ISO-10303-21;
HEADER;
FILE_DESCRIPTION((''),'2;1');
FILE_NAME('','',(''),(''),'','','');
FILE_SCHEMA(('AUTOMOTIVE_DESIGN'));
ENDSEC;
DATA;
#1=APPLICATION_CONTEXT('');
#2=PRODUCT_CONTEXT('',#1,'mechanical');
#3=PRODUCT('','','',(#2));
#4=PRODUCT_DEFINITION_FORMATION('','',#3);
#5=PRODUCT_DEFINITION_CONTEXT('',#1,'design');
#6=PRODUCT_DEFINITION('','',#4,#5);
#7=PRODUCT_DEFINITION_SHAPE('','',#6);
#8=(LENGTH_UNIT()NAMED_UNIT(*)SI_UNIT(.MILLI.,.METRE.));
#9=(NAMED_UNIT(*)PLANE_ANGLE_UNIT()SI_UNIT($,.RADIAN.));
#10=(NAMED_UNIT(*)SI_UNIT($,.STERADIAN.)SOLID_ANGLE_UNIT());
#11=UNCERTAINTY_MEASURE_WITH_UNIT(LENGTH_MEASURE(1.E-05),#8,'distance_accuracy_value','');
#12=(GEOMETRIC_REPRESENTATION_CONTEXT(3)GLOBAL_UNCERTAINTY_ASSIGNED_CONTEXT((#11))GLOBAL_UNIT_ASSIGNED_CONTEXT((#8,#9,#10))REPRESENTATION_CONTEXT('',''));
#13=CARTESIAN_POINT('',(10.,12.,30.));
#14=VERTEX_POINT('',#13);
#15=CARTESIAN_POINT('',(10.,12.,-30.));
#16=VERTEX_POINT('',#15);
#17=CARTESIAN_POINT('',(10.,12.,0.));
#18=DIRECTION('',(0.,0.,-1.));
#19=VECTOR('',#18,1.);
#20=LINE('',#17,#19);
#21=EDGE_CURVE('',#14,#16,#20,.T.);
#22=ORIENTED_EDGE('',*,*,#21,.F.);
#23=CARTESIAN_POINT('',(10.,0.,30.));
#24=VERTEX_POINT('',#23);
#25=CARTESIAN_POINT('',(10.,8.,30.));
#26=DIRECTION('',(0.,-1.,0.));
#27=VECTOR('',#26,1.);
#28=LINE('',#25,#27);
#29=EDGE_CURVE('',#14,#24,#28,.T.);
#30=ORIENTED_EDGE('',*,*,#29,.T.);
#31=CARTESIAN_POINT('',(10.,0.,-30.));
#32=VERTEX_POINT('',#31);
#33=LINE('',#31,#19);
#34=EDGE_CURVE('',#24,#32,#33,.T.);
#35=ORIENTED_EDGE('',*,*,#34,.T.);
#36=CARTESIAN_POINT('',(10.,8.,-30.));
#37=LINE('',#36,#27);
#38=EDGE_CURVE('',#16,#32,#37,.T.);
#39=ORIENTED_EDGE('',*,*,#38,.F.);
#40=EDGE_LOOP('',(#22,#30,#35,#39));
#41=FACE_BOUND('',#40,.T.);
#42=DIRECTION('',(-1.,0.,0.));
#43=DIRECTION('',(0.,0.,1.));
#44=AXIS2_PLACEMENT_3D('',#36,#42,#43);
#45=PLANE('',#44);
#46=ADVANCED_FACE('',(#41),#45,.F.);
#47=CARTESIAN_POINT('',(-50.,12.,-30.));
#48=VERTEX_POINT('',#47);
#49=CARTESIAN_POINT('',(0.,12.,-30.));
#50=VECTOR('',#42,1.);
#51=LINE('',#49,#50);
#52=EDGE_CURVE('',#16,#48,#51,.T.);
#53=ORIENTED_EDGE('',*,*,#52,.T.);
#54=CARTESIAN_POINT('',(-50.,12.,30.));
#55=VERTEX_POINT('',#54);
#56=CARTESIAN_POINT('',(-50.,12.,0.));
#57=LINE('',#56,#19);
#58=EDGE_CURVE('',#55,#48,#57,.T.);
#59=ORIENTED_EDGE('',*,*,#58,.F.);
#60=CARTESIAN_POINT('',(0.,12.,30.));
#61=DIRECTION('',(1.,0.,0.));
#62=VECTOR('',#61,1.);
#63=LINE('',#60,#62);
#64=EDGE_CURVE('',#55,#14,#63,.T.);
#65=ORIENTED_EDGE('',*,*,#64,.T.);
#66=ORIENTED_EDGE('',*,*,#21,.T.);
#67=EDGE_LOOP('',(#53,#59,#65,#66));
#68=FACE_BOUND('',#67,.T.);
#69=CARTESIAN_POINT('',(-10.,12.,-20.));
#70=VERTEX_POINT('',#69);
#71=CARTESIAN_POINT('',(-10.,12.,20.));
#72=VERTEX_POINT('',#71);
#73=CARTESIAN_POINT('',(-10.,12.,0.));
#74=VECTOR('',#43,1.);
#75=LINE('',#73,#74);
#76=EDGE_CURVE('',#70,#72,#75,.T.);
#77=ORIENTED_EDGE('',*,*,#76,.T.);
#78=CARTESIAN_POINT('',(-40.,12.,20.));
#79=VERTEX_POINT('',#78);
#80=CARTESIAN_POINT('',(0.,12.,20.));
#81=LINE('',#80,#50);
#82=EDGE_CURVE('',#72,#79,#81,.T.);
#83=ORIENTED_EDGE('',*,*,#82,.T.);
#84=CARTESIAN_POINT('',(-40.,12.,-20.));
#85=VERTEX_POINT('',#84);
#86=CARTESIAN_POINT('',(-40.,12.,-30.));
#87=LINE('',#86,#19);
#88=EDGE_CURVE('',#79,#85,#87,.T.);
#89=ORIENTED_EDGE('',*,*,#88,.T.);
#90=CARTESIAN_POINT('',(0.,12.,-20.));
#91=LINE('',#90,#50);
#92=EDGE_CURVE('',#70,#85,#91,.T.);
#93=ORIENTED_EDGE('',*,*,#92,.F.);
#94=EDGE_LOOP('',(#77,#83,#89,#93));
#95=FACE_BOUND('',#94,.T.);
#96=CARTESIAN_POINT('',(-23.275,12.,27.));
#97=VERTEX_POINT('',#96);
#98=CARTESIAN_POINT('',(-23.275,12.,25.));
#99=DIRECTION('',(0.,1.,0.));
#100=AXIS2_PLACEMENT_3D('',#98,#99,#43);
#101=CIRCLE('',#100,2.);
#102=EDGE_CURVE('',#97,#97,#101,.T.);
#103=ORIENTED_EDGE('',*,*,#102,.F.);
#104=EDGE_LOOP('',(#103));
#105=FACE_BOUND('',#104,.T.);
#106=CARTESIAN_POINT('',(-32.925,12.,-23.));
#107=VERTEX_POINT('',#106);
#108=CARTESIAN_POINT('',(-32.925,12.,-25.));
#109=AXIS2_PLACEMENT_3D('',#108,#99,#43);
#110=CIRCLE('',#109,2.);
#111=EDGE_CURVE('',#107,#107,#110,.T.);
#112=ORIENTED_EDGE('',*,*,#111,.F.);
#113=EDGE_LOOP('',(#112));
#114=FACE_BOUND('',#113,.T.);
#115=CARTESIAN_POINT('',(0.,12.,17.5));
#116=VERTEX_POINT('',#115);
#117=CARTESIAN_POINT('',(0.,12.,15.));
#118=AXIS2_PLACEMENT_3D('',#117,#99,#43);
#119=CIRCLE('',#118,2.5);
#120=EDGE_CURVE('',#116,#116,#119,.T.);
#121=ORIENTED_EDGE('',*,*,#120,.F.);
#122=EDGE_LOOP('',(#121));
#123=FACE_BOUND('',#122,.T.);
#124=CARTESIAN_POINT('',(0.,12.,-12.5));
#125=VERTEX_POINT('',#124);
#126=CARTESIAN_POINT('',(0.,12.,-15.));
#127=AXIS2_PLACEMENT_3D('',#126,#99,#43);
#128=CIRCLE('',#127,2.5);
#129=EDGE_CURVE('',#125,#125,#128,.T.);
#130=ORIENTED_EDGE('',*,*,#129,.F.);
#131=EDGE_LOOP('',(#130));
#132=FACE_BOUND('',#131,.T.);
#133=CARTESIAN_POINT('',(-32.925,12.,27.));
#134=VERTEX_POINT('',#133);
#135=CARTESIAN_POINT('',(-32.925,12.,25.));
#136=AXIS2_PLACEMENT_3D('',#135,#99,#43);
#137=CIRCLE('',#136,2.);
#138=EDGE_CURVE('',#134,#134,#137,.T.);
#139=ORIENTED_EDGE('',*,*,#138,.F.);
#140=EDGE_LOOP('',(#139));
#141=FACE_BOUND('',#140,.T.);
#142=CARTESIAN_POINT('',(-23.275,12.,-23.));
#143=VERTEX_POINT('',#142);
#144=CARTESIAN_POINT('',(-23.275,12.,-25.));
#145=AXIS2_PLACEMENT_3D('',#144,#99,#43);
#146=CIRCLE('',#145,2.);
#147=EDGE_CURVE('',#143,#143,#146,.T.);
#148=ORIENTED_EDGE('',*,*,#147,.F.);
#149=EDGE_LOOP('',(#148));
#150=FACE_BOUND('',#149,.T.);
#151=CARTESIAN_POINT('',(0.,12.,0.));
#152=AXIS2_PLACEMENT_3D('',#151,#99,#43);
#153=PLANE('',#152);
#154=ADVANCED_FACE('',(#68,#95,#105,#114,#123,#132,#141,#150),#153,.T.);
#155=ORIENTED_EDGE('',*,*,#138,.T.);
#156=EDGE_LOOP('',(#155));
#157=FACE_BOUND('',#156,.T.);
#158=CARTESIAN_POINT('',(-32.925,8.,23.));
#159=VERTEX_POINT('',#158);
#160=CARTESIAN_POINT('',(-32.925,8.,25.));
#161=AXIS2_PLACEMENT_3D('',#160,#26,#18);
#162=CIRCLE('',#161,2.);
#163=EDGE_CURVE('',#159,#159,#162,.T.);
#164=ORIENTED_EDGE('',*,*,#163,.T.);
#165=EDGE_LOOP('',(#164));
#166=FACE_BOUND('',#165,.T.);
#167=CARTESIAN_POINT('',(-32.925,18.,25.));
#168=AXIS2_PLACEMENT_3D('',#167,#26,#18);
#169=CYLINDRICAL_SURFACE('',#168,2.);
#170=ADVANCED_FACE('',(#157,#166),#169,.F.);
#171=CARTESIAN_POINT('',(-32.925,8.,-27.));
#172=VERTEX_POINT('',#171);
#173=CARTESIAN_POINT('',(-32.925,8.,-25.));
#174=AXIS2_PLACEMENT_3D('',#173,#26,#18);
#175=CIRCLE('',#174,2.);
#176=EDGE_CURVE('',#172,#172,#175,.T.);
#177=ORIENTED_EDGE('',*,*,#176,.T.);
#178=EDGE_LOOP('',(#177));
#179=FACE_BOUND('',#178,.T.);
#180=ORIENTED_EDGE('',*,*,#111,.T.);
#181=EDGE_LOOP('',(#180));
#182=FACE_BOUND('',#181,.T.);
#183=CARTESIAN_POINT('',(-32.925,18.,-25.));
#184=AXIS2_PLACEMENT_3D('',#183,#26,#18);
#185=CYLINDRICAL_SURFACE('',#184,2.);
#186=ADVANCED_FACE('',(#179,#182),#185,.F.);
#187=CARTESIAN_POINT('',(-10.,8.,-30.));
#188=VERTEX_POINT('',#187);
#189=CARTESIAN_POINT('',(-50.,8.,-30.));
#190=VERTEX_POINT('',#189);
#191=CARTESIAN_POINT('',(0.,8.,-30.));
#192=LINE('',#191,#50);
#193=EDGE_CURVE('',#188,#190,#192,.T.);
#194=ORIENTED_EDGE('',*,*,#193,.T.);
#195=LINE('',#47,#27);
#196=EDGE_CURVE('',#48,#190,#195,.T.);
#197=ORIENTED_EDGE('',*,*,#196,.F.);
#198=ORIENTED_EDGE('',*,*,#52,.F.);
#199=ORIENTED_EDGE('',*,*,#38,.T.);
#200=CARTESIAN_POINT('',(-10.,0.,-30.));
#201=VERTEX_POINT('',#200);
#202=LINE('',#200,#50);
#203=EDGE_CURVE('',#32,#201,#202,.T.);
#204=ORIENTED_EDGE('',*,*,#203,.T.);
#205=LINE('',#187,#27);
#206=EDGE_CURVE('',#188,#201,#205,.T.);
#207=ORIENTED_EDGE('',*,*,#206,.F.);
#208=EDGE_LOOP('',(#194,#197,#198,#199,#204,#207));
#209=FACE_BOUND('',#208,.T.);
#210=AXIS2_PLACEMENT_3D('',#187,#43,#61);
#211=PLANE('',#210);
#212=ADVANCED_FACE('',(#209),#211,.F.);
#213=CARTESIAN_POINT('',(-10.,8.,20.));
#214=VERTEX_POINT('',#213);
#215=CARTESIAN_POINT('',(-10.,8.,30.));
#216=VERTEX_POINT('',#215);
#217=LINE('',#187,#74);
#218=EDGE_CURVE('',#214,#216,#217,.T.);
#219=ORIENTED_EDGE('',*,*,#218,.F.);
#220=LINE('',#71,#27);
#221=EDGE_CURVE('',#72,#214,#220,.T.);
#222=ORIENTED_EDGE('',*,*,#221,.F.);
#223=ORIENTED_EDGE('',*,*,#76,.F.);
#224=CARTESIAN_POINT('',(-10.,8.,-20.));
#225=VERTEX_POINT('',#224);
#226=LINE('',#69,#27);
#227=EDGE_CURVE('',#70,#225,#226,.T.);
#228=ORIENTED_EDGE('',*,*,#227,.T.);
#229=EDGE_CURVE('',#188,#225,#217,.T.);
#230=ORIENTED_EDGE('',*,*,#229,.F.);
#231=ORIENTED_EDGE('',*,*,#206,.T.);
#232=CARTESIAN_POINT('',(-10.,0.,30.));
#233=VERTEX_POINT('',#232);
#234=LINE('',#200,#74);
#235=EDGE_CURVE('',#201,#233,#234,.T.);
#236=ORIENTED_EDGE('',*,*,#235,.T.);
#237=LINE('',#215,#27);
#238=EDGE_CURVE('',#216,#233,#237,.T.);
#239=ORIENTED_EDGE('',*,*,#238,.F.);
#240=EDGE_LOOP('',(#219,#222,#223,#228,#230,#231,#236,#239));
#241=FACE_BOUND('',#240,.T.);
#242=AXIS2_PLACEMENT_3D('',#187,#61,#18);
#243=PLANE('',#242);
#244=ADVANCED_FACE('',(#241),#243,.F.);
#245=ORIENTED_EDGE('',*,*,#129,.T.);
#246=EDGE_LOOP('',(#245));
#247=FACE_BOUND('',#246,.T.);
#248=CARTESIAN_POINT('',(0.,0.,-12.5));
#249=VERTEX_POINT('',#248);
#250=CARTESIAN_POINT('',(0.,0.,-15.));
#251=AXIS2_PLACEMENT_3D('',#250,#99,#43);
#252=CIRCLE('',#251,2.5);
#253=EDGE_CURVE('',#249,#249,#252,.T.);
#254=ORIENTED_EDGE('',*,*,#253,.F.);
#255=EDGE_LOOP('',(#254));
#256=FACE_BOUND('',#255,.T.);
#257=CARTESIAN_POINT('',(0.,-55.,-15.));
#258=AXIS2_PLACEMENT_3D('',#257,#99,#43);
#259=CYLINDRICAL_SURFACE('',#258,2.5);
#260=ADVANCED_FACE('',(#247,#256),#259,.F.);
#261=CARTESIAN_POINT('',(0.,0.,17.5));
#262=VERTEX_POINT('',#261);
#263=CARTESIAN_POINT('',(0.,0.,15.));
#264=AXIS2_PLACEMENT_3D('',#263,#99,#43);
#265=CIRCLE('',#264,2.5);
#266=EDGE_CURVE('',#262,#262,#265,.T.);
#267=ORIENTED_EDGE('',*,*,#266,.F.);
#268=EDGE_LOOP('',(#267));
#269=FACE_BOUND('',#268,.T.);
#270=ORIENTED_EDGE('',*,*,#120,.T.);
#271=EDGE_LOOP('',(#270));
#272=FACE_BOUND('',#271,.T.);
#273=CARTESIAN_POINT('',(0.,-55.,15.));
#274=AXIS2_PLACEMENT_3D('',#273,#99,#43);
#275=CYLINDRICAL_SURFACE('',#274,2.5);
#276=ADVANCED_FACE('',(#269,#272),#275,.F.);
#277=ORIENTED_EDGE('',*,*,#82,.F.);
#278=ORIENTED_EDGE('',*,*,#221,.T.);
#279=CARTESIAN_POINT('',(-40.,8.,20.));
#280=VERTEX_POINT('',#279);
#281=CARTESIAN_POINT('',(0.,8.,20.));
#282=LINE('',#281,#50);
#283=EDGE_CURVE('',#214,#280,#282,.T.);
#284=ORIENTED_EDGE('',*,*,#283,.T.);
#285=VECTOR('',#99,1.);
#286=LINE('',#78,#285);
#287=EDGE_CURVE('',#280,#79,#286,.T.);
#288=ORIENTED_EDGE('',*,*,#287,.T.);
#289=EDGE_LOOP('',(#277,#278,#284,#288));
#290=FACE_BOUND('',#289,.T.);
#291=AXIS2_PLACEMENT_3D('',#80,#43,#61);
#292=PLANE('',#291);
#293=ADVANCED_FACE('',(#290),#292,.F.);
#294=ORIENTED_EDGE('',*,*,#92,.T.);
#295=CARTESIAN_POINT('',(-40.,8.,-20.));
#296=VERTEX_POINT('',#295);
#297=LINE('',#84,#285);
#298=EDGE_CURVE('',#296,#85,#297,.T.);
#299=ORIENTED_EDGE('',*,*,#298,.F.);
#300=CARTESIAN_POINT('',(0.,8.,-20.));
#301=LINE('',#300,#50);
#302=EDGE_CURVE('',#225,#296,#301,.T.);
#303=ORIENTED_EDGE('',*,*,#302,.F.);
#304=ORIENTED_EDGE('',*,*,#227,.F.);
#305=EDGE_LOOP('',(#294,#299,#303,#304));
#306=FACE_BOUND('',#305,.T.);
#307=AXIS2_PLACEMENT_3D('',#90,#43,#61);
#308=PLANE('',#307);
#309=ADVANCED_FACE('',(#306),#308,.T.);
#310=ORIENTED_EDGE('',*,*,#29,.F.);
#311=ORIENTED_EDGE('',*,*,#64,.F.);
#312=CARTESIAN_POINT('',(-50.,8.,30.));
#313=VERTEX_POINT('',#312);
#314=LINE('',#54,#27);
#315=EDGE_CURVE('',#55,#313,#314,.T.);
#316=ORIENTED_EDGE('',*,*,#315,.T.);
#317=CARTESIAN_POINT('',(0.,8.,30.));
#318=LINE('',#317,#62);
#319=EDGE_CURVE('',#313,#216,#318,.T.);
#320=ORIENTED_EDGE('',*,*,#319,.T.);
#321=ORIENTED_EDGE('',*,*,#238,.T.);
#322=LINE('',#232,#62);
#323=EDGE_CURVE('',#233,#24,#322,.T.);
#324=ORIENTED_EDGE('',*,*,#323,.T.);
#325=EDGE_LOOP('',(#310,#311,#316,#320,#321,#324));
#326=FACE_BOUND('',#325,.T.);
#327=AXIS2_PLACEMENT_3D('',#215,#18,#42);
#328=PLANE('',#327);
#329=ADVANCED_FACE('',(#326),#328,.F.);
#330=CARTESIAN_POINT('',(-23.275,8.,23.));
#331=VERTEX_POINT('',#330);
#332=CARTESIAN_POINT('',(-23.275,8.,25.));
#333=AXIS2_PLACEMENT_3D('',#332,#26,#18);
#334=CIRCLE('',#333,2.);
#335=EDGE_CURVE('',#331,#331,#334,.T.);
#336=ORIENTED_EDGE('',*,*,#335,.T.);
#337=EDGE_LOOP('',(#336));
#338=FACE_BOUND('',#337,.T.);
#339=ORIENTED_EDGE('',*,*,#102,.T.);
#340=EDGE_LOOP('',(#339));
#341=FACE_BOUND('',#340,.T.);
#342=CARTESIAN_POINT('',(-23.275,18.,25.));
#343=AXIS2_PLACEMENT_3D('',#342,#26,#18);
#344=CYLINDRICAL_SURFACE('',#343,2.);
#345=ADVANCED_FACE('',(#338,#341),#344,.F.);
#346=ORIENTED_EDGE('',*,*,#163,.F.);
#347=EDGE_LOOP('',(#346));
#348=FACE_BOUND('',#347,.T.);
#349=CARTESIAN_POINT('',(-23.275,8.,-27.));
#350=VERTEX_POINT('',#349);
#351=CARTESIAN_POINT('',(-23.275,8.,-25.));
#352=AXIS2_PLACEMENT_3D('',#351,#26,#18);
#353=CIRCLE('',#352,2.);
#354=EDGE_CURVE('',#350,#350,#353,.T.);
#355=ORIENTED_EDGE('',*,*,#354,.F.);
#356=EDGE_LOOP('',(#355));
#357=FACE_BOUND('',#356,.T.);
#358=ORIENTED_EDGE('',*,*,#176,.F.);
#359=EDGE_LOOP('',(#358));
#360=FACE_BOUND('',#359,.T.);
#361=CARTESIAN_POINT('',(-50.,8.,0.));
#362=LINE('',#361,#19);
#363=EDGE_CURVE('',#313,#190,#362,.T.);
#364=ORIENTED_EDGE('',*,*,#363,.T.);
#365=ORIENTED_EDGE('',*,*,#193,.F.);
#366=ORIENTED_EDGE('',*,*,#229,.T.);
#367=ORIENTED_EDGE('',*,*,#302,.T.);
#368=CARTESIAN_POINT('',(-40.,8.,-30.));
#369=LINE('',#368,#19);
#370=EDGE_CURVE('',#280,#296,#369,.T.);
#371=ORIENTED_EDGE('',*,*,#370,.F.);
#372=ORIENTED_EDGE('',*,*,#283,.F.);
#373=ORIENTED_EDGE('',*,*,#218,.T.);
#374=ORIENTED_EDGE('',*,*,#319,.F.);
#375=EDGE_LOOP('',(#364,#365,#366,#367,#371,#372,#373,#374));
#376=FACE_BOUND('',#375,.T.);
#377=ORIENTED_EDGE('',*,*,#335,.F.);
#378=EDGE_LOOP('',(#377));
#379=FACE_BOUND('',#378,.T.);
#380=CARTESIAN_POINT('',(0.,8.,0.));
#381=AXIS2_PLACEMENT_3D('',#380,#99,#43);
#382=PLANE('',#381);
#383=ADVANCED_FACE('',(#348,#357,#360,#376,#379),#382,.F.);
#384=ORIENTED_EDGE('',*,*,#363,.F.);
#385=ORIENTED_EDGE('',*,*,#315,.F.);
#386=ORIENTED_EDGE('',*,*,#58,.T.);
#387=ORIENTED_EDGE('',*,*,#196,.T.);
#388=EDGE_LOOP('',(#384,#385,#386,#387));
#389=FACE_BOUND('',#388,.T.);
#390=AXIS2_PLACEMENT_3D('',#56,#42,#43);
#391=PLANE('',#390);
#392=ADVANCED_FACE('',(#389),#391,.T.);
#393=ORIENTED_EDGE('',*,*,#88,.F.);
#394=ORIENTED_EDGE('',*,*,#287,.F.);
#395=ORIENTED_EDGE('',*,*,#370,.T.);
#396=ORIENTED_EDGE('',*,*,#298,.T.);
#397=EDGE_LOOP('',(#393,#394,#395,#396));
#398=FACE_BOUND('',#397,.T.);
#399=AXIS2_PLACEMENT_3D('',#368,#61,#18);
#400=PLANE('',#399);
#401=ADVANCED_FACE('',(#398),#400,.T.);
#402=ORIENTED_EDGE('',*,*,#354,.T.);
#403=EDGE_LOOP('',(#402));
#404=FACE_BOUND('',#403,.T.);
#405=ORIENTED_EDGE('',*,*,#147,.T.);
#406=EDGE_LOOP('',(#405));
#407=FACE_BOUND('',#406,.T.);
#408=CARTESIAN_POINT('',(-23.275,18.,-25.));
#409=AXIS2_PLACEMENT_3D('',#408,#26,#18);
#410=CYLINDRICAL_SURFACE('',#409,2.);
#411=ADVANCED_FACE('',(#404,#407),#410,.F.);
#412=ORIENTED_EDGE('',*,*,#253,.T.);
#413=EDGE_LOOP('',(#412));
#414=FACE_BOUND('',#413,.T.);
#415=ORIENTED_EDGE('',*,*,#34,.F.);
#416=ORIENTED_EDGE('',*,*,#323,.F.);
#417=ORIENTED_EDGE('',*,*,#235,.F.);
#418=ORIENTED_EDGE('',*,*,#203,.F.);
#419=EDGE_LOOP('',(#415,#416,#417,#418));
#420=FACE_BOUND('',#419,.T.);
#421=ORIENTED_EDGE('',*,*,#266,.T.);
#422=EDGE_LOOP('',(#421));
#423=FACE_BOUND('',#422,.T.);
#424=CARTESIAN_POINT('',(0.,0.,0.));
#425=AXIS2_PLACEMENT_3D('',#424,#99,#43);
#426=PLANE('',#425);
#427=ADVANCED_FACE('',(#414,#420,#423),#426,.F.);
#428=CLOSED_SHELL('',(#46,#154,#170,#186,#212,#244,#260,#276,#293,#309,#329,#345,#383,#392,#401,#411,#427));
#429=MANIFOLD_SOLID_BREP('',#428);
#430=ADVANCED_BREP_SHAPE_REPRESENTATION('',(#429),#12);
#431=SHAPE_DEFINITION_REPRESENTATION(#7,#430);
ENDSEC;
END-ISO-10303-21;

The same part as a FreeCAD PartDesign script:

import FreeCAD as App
import Part
import Sketcher
from FreeCAD import Vector


def add_polygon(sketch, points):
    """Adds a closed chain of lines whose ends are joined by coincident constraints."""
    first, n = sketch.GeometryCount, len(points)
    for a, b in zip(points, points[1:] + points[:1]):
        sketch.addGeometry(Part.LineSegment(App.Vector(*a, 0), App.Vector(*b, 0)), False)
    for i in range(n):
        sketch.addConstraint(Sketcher.Constraint("Coincident", first + i, 2, first + (i + 1) % n, 1))

doc = App.newDocument("Part")
params = doc.addObject("Spreadsheet::Sheet", "Params")
for row, (alias, value) in enumerate([
    ("sketch1_width", "20 mm"),
    ("sketch1_height", "60 mm"),
    ("pad1_length", "8 mm"),
    ("sketch2_width", "60 mm"),
    ("sketch2_width2", "40 mm"),
    ("pad2_length", "4 mm"),
    ("sketch3_width", "10 mm"),
    ("sketch3_height", "60 mm"),
    ("pad3_length", "4 mm"),
    ("sketch4_diameter", "5 mm"),
    ("pocket1_length", "67 mm"),
    ("sketch5_diameter", "4 mm"),
    ("pocket2_length", "10 mm"),
], start=1):
    params.set(f"A{row}", alias)
    params.set(f"B{row}", "=" + value)
    params.setAlias(f"B{row}", alias)

body = doc.addObject("PartDesign::Body", "Body")

sketch1 = doc.addObject("Sketcher::SketchObject", "Sketch")
body.addObject(sketch1)
sketch1.AttachmentSupport = (doc.XZ_Plane, [""])
sketch1.MapMode = "FlatFace"
add_polygon(sketch1, [(-10, -30), (-10, 30), (10, 30), (10, -30)])
sketch1.addConstraint(Sketcher.Constraint("Vertical", 0))
sketch1.addConstraint(Sketcher.Constraint("Horizontal", 1))
sketch1.addConstraint(Sketcher.Constraint("Vertical", 2))
sketch1.addConstraint(Sketcher.Constraint("Horizontal", 3))
sketch1.addConstraint(Sketcher.Constraint("Symmetric", 0, 2, 2, 2, -1, 1))
sketch1.addConstraint(Sketcher.Constraint("DistanceX", 1, 1, 1, 2, 20.0))
sketch1.addConstraint(Sketcher.Constraint("DistanceY", 0, 1, 0, 2, 60.0))
sketch1.setExpression("Constraints[9]", "Params.sketch1_width")
sketch1.setExpression("Constraints[10]", "Params.sketch1_height")
pad1 = doc.addObject("PartDesign::Pad", "Pad")
body.addObject(pad1)
pad1.Profile = sketch1
pad1.setExpression("Length", "Params.pad1_length")
pad1.Reversed = True

sketch2 = doc.addObject("Sketcher::SketchObject", "Sketch001")
body.addObject(sketch2)
sketch2.AttachmentSupport = (doc.XZ_Plane, [""])
sketch2.MapMode = "FlatFace"
sketch2.AttachmentOffset = App.Placement(Vector(0, 0, -8), App.Rotation())
add_polygon(sketch2, [(10, 30), (10, -30), (-50, -30), (-50, -20), (-10, -20), (-10, 20), (-50, 20), (-50, 30)])
sketch2.addConstraint(Sketcher.Constraint("Vertical", 0))
sketch2.addConstraint(Sketcher.Constraint("Horizontal", 1))
sketch2.addConstraint(Sketcher.Constraint("Vertical", 2))
sketch2.addConstraint(Sketcher.Constraint("Horizontal", 3))
sketch2.addConstraint(Sketcher.Constraint("Vertical", 4))
sketch2.addConstraint(Sketcher.Constraint("Horizontal", 5))
sketch2.addConstraint(Sketcher.Constraint("Vertical", 6))
sketch2.addConstraint(Sketcher.Constraint("Horizontal", 7))
sketch2.addConstraint(Sketcher.Constraint("Symmetric", 2, 2, 5, 2, -1))
sketch2.addConstraint(Sketcher.Constraint("Equal", 7, 0))
sketch2.addConstraint(Sketcher.Constraint("Equal", 5, 4))
sketch2.addConstraint(Sketcher.Constraint("Equal", 2, 6))
sketch2.addConstraint(Sketcher.Constraint("DistanceX", 1, 2, 1, 1, 60.0))
sketch2.addConstraint(Sketcher.Constraint("DistanceX", 3, 1, 3, 2, 40.0))
sketch2.addConstraint(Sketcher.Constraint("DistanceX", -1, 1, 0, 2, 10.0))
sketch2.setExpression("Constraints[20]", "Params.sketch2_width")
sketch2.setExpression("Constraints[21]", "Params.sketch2_width2")
pad2 = doc.addObject("PartDesign::Pad", "Pad001")
body.addObject(pad2)
pad2.Profile = sketch2
pad2.setExpression("Length", "Params.pad2_length")
pad2.Reversed = True

sketch3 = doc.addObject("Sketcher::SketchObject", "Sketch002")
body.addObject(sketch3)
sketch3.AttachmentSupport = (doc.XZ_Plane, [""])
sketch3.MapMode = "FlatFace"
sketch3.AttachmentOffset = App.Placement(Vector(0, 0, -12), App.Rotation())
add_polygon(sketch3, [(-50, -30), (-50, 30), (-40, 30), (-40, -30)])
sketch3.addConstraint(Sketcher.Constraint("Vertical", 0))
sketch3.addConstraint(Sketcher.Constraint("Horizontal", 1))
sketch3.addConstraint(Sketcher.Constraint("Vertical", 2))
sketch3.addConstraint(Sketcher.Constraint("Horizontal", 3))
sketch3.addConstraint(Sketcher.Constraint("DistanceX", 1, 1, 1, 2, 10.0))
sketch3.addConstraint(Sketcher.Constraint("DistanceY", 0, 1, 0, 2, 60.0))
sketch3.addConstraint(Sketcher.Constraint("DistanceX", 0, 2, -1, 1, 50.0))
sketch3.addConstraint(Sketcher.Constraint("DistanceY", -1, 1, 0, 2, 30.0))
sketch3.setExpression("Constraints[8]", "Params.sketch3_width")
sketch3.setExpression("Constraints[9]", "Params.sketch3_height")
pad3 = doc.addObject("PartDesign::Pad", "Pad002")
body.addObject(pad3)
pad3.Profile = sketch3
pad3.setExpression("Length", "Params.pad3_length")

sketch4 = doc.addObject("Sketcher::SketchObject", "Sketch003")
body.addObject(sketch4)
sketch4.AttachmentSupport = (doc.XZ_Plane, [""])
sketch4.MapMode = "FlatFace"
sketch4.AttachmentOffset = App.Placement(Vector(0, 0, -12), App.Rotation())
sketch4.addGeometry(Part.Circle(Vector(0, -15, 0), Vector(0, 0, 1), 2.5), False)
sketch4.addGeometry(Part.Circle(Vector(0, 15, 0), Vector(0, 0, 1), 2.5), False)
sketch4.addConstraint(Sketcher.Constraint("Equal", 0, 1))
sketch4.addConstraint(Sketcher.Constraint("Symmetric", 0, 3, 1, 3, -1, 1))
sketch4.addConstraint(Sketcher.Constraint("PointOnObject", 0, 3, -2))
sketch4.addConstraint(Sketcher.Constraint("Diameter", 0, 5.0))
sketch4.addConstraint(Sketcher.Constraint("DistanceY", 0, 3, -1, 1, 15.0))
sketch4.setExpression("Constraints[3]", "Params.sketch4_diameter")
pocket1 = doc.addObject("PartDesign::Pocket", "Pocket")
body.addObject(pocket1)
pocket1.Profile = sketch4
pocket1.setExpression("Length", "Params.pocket1_length")
pocket1.Reversed = True

sketch5 = doc.addObject("Sketcher::SketchObject", "Sketch004")
body.addObject(sketch5)
sketch5.AttachmentSupport = (doc.XZ_Plane, [""])
sketch5.MapMode = "FlatFace"
sketch5.AttachmentOffset = App.Placement(Vector(0, 0, -8), App.Rotation())
sketch5.addGeometry(Part.Circle(Vector(-23.275, 25, 0), Vector(0, 0, 1), 2), False)
sketch5.addGeometry(Part.Circle(Vector(-32.925, 25, 0), Vector(0, 0, 1), 2), False)
sketch5.addGeometry(Part.Circle(Vector(-23.275, -25, 0), Vector(0, 0, 1), 2), False)
sketch5.addGeometry(Part.Circle(Vector(-32.925, -25, 0), Vector(0, 0, 1), 2), False)
sketch5.addConstraint(Sketcher.Constraint("Equal", 0, 1))
sketch5.addConstraint(Sketcher.Constraint("Equal", 1, 2))
sketch5.addConstraint(Sketcher.Constraint("Equal", 2, 3))
sketch5.addConstraint(Sketcher.Constraint("Symmetric", 0, 3, 2, 3, -1))
sketch5.addConstraint(Sketcher.Constraint("Symmetric", 1, 3, 3, 3, -1))
sketch5.addConstraint(Sketcher.Constraint("Horizontal", 0, 3, 1, 3))
sketch5.addConstraint(Sketcher.Constraint("Diameter", 0, 4.0))
sketch5.addConstraint(Sketcher.Constraint("DistanceY", -1, 1, 0, 3, 25.0))
sketch5.addConstraint(Sketcher.Constraint("DistanceX", 1, 3, 0, 3, 9.65))
sketch5.addConstraint(Sketcher.Constraint("DistanceX", 0, 3, -1, 1, 23.275))
sketch5.setExpression("Constraints[6]", "Params.sketch5_diameter")
pocket2 = doc.addObject("PartDesign::Pocket", "Pocket001")
body.addObject(pocket2)
pocket2.Profile = sketch5
pocket2.setExpression("Length", "Params.pocket2_length")

doc.recompute()
